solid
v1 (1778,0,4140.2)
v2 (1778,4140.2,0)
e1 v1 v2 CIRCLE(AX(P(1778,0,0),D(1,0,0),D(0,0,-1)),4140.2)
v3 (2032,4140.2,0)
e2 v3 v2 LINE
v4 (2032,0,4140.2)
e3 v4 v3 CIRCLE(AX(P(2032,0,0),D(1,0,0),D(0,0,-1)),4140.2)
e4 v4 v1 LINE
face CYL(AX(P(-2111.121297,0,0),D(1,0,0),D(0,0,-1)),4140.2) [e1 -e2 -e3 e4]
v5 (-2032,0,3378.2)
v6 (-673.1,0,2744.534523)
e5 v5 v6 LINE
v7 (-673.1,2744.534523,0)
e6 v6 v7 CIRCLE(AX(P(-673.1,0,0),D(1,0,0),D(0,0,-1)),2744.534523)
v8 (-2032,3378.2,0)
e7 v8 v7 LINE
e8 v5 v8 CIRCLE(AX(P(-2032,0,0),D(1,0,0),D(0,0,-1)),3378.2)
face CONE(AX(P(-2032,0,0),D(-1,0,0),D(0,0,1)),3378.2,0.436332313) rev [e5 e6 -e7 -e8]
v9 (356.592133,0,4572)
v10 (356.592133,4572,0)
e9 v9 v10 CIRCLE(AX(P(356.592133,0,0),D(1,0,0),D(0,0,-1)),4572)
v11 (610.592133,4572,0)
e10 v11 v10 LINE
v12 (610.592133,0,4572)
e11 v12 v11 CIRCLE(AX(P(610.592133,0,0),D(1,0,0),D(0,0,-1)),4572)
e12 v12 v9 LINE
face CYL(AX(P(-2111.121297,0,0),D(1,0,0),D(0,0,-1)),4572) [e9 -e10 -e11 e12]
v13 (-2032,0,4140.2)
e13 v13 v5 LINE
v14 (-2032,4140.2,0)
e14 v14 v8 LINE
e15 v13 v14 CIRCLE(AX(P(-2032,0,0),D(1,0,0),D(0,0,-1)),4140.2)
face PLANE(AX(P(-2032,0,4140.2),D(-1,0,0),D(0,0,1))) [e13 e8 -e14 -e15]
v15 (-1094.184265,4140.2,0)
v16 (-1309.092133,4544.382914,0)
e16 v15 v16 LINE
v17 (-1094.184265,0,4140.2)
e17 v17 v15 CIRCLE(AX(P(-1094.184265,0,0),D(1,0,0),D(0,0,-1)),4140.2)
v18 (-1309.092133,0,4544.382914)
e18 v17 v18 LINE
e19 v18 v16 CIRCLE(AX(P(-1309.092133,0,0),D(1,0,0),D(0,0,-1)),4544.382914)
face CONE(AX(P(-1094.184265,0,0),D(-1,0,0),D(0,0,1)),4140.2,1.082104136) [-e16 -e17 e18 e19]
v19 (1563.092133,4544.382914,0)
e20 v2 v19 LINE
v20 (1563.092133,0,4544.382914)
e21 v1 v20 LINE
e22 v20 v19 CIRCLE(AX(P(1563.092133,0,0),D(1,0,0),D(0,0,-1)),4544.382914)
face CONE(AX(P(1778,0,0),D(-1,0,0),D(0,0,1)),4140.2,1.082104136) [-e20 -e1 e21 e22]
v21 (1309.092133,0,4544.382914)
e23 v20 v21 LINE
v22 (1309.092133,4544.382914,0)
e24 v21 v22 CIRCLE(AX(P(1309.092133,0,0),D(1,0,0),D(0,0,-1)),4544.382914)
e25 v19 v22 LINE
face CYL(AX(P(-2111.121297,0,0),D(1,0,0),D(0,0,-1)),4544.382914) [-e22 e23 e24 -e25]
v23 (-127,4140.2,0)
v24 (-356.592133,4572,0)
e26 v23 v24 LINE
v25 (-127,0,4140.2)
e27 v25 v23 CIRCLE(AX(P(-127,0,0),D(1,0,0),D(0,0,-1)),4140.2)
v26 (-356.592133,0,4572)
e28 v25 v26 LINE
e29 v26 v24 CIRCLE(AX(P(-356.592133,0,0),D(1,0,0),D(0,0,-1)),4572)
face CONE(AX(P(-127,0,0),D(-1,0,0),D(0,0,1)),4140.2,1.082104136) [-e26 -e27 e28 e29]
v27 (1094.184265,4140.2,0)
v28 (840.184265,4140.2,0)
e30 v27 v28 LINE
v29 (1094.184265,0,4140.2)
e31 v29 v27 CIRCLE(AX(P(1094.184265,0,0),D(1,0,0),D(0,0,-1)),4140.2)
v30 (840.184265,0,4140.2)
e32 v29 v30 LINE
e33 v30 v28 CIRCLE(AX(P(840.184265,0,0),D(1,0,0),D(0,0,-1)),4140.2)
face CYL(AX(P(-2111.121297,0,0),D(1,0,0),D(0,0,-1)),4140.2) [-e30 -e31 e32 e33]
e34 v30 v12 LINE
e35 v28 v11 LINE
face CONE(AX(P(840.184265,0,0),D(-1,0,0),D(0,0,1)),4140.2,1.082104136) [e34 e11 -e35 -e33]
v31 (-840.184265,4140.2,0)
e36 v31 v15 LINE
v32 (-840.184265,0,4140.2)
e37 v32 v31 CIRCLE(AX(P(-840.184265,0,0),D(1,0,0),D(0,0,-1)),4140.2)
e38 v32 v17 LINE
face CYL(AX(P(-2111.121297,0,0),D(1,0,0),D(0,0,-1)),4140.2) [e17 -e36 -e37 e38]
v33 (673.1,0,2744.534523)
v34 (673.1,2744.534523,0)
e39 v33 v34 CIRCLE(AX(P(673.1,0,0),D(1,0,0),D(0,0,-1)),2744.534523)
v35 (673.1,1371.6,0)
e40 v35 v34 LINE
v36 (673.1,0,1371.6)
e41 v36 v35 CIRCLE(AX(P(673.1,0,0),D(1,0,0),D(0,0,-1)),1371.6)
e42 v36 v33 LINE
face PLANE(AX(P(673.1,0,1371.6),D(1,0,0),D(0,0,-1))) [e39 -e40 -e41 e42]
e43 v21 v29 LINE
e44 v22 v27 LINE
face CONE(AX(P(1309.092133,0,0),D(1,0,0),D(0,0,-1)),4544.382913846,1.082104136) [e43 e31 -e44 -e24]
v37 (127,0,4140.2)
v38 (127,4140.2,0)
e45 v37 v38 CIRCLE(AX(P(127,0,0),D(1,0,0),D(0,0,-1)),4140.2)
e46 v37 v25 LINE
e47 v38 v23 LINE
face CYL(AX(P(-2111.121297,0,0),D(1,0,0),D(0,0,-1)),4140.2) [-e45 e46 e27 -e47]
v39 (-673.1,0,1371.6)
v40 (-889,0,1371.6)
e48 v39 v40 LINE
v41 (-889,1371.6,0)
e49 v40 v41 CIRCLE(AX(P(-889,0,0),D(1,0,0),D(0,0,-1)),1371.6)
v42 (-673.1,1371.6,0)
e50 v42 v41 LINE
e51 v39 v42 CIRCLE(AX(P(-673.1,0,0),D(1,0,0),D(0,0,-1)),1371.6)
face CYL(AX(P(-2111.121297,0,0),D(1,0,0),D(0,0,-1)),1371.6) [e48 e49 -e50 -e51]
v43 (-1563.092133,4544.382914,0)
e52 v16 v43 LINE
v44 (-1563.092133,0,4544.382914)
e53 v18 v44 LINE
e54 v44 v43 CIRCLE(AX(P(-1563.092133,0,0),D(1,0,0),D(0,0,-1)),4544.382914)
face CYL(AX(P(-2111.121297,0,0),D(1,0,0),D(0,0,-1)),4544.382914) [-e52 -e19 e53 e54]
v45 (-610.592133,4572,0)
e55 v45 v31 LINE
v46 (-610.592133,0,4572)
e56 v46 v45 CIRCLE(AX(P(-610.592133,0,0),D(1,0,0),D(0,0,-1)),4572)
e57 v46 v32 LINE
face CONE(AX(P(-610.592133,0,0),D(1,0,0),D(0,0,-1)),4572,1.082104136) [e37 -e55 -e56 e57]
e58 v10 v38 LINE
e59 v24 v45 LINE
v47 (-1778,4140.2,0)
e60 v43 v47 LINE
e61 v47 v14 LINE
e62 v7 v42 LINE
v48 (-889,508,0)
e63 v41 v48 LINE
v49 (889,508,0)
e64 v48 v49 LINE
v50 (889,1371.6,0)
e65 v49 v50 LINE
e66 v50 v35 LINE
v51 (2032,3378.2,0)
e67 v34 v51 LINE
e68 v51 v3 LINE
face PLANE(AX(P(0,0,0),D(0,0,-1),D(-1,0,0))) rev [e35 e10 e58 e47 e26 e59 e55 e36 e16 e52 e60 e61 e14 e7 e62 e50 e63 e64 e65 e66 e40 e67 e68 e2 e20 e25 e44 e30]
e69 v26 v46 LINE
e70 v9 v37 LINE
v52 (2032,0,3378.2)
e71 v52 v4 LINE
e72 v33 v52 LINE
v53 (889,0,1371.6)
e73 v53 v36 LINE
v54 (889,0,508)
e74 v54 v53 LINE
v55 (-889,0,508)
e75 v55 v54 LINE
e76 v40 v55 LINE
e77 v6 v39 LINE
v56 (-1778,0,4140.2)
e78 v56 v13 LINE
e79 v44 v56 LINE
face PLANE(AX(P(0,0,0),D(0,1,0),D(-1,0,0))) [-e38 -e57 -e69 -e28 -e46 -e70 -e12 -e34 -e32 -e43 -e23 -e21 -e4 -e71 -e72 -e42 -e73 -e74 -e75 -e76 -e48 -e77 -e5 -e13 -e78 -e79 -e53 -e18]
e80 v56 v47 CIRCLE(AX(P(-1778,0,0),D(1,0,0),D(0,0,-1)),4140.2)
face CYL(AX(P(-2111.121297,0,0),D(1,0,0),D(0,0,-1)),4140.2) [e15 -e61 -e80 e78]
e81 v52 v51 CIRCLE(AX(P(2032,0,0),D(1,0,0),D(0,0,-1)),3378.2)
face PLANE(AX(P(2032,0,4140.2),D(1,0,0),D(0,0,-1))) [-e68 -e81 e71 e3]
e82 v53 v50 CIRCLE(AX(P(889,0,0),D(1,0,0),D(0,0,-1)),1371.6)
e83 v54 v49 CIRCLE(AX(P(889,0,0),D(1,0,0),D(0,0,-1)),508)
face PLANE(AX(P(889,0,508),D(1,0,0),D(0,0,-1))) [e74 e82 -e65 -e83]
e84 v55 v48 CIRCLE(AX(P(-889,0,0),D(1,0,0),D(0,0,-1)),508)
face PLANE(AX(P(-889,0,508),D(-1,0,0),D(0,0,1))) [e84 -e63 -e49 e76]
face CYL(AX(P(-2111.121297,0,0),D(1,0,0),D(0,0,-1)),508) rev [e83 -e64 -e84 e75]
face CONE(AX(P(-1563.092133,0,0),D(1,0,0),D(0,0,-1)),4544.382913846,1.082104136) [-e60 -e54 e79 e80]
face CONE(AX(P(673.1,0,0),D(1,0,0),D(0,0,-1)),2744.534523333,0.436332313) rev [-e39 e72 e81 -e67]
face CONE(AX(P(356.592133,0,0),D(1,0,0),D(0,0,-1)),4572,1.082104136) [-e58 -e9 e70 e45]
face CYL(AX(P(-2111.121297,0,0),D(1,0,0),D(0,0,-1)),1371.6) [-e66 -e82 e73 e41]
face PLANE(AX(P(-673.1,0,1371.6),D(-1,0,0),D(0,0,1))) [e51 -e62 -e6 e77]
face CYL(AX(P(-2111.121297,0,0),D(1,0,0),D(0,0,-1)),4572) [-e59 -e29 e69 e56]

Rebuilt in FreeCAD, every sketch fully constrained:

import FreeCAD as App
import Part
import Sketcher
Q = App.Units.Quantity

doc = App.newDocument("Part")
body = doc.addObject("PartDesign::Body", "Body")

sketch1 = doc.addObject("Sketcher::SketchObject", "Sketch")
body.addObject(sketch1)
sketch1.AttachmentSupport = (doc.XY_Plane, [""])
sketch1.MapMode = "FlatFace"
sketch1.addGeometry(Part.LineSegment(App.Vector(-889, 508, 0), App.Vector(889, 508, 0)), False)
sketch1.addGeometry(Part.LineSegment(App.Vector(889, 508, 0), App.Vector(889, 1372, 0)), False)
sketch1.addGeometry(Part.LineSegment(App.Vector(889, 1372, 0), App.Vector(673, 1372, 0)), False)
sketch1.addGeometry(Part.LineSegment(App.Vector(673, 1372, 0), App.Vector(673, 2745, 0)), False)
sketch1.addGeometry(Part.LineSegment(App.Vector(673, 2745, 0), App.Vector(2032, 3378, 0)), False)
sketch1.addGeometry(Part.LineSegment(App.Vector(2032, 3378, 0), App.Vector(2032, 4140, 0)), False)
sketch1.addGeometry(Part.LineSegment(App.Vector(2032, 4140, 0), App.Vector(1778, 4140, 0)), False)
sketch1.addGeometry(Part.LineSegment(App.Vector(1778, 4140, 0), App.Vector(1563, 4544, 0)), False)
sketch1.addGeometry(Part.LineSegment(App.Vector(1563, 4544, 0), App.Vector(1309, 4544, 0)), False)
sketch1.addGeometry(Part.LineSegment(App.Vector(1309, 4544, 0), App.Vector(1094, 4140, 0)), False)
sketch1.addGeometry(Part.LineSegment(App.Vector(1094, 4140, 0), App.Vector(840, 4140, 0)), False)
sketch1.addGeometry(Part.LineSegment(App.Vector(840, 4140, 0), App.Vector(611, 4572, 0)), False)
sketch1.addGeometry(Part.LineSegment(App.Vector(611, 4572, 0), App.Vector(357, 4572, 0)), False)
sketch1.addGeometry(Part.LineSegment(App.Vector(357, 4572, 0), App.Vector(127, 4140, 0)), False)
sketch1.addGeometry(Part.LineSegment(App.Vector(127, 4140, 0), App.Vector(-127, 4140, 0)), False)
sketch1.addGeometry(Part.LineSegment(App.Vector(-127, 4140, 0), App.Vector(-357, 4572, 0)), False)
sketch1.addGeometry(Part.LineSegment(App.Vector(-357, 4572, 0), App.Vector(-611, 4572, 0)), False)
sketch1.addGeometry(Part.LineSegment(App.Vector(-611, 4572, 0), App.Vector(-840, 4140, 0)), False)
sketch1.addGeometry(Part.LineSegment(App.Vector(-840, 4140, 0), App.Vector(-1094, 4140, 0)), False)
sketch1.addGeometry(Part.LineSegment(App.Vector(-1094, 4140, 0), App.Vector(-1309, 4544, 0)), False)
sketch1.addGeometry(Part.LineSegment(App.Vector(-1309, 4544, 0), App.Vector(-1563, 4544, 0)), False)
sketch1.addGeometry(Part.LineSegment(App.Vector(-1563, 4544, 0), App.Vector(-1778, 4140, 0)), False)
sketch1.addGeometry(Part.LineSegment(App.Vector(-1778, 4140, 0), App.Vector(-2032, 4140, 0)), False)
sketch1.addGeometry(Part.LineSegment(App.Vector(-2032, 4140, 0), App.Vector(-2032, 3378, 0)), False)
sketch1.addGeometry(Part.LineSegment(App.Vector(-2032, 3378, 0), App.Vector(-673, 2745, 0)), False)
sketch1.addGeometry(Part.LineSegment(App.Vector(-673, 2745, 0), App.Vector(-673, 1372, 0)), False)
sketch1.addGeometry(Part.LineSegment(App.Vector(-673, 1372, 0), App.Vector(-889, 1372, 0)), False)
sketch1.addGeometry(Part.LineSegment(App.Vector(-889, 1372, 0), App.Vector(-889, 508, 0)), False)
sketch1.addConstraint(Sketcher.Constraint("Coincident", 0, 2, 1, 1))
sketch1.addConstraint(Sketcher.Constraint("Coincident", 1, 2, 2, 1))
sketch1.addConstraint(Sketcher.Constraint("Coincident", 2, 2, 3, 1))
sketch1.addConstraint(Sketcher.Constraint("Coincident", 3, 2, 4, 1))
sketch1.addConstraint(Sketcher.Constraint("Coincident", 4, 2, 5, 1))
sketch1.addConstraint(Sketcher.Constraint("Coincident", 5, 2, 6, 1))
sketch1.addConstraint(Sketcher.Constraint("Coincident", 6, 2, 7, 1))
sketch1.addConstraint(Sketcher.Constraint("Coincident", 7, 2, 8, 1))
sketch1.addConstraint(Sketcher.Constraint("Coincident", 8, 2, 9, 1))
sketch1.addConstraint(Sketcher.Constraint("Coincident", 9, 2, 10, 1))
sketch1.addConstraint(Sketcher.Constraint("Coincident", 10, 2, 11, 1))
sketch1.addConstraint(Sketcher.Constraint("Coincident", 11, 2, 12, 1))
sketch1.addConstraint(Sketcher.Constraint("Coincident", 12, 2, 13, 1))
sketch1.addConstraint(Sketcher.Constraint("Coincident", 13, 2, 14, 1))
sketch1.addConstraint(Sketcher.Constraint("Coincident", 14, 2, 15, 1))
sketch1.addConstraint(Sketcher.Constraint("Coincident", 15, 2, 16, 1))
sketch1.addConstraint(Sketcher.Constraint("Coincident", 16, 2, 17, 1))
sketch1.addConstraint(Sketcher.Constraint("Coincident", 17, 2, 18, 1))
sketch1.addConstraint(Sketcher.Constraint("Coincident", 18, 2, 19, 1))
sketch1.addConstraint(Sketcher.Constraint("Coincident", 19, 2, 20, 1))
sketch1.addConstraint(Sketcher.Constraint("Coincident", 20, 2, 21, 1))
sketch1.addConstraint(Sketcher.Constraint("Coincident", 21, 2, 22, 1))
sketch1.addConstraint(Sketcher.Constraint("Coincident", 22, 2, 23, 1))
sketch1.addConstraint(Sketcher.Constraint("Coincident", 23, 2, 24, 1))
sketch1.addConstraint(Sketcher.Constraint("Coincident", 24, 2, 25, 1))
sketch1.addConstraint(Sketcher.Constraint("Coincident", 25, 2, 26, 1))
sketch1.addConstraint(Sketcher.Constraint("Coincident", 26, 2, 27, 1))
sketch1.addConstraint(Sketcher.Constraint("Coincident", 27, 2, 0, 1))
sketch1.addConstraint(Sketcher.Constraint("Horizontal", 0))
sketch1.addConstraint(Sketcher.Constraint("Vertical", 1))
sketch1.addConstraint(Sketcher.Constraint("Horizontal", 2))
sketch1.addConstraint(Sketcher.Constraint("Vertical", 3))
sketch1.addConstraint(Sketcher.Constraint("Vertical", 5))
sketch1.addConstraint(Sketcher.Constraint("Horizontal", 6))
sketch1.addConstraint(Sketcher.Constraint("Horizontal", 8))
sketch1.addConstraint(Sketcher.Constraint("Horizontal", 10))
sketch1.addConstraint(Sketcher.Constraint("Horizontal", 12))
sketch1.addConstraint(Sketcher.Constraint("Horizontal", 14))
sketch1.addConstraint(Sketcher.Constraint("Horizontal", 16))
sketch1.addConstraint(Sketcher.Constraint("Horizontal", 18))
sketch1.addConstraint(Sketcher.Constraint("Horizontal", 20))
sketch1.addConstraint(Sketcher.Constraint("Horizontal", 22))
sketch1.addConstraint(Sketcher.Constraint("Vertical", 23))
sketch1.addConstraint(Sketcher.Constraint("Vertical", 25))
sketch1.addConstraint(Sketcher.Constraint("Horizontal", 26))
sketch1.addConstraint(Sketcher.Constraint("Vertical", 27))
sketch1.addConstraint(Sketcher.Constraint("Symmetric", 12, 2, 15, 2, -2))
sketch1.addConstraint(Sketcher.Constraint("Symmetric", 10, 2, 17, 2, -2))
sketch1.addConstraint(Sketcher.Constraint("Symmetric", 8, 2, 19, 2, -2))
sketch1.addConstraint(Sketcher.Constraint("Symmetric", 6, 2, 21, 2, -2))
sketch1.addConstraint(Sketcher.Constraint("Symmetric", 4, 2, 23, 2, -2))
sketch1.addConstraint(Sketcher.Constraint("Symmetric", 3, 2, 24, 2, -2))
sketch1.addConstraint(Sketcher.Constraint("Symmetric", 1, 2, 26, 2, -2))
sketch1.addConstraint(Sketcher.Constraint("Parallel", 7, 11))
sketch1.addConstraint(Sketcher.Constraint("Parallel", 9, 13))
sketch1.addConstraint(Sketcher.Constraint("Parallel", 11, 15))
sketch1.addConstraint(Sketcher.Constraint("Parallel", 13, 17))
sketch1.addConstraint(Sketcher.Constraint("Parallel", 15, 19))
sketch1.addConstraint(Sketcher.Constraint("Parallel", 17, 21))
sketch1.addConstraint(Sketcher.Constraint("Horizontal", 6, 2, 9, 2))
sketch1.addConstraint(Sketcher.Constraint("Horizontal", 10, 2, 13, 2))
sketch1.addConstraint(Sketcher.Constraint("Equal", 6, 8))
sketch1.addConstraint(Sketcher.Constraint("Equal", 8, 10))
sketch1.addConstraint(Sketcher.Constraint("Equal", 10, 12))
sketch1.addConstraint(Sketcher.Constraint("Equal", 12, 14))
sketch1.addConstraint(Sketcher.Constraint("Equal", 14, 16))
sketch1.addConstraint(Sketcher.Constraint("DistanceX", 0, 1, 0, 2, Q("70 in")))
sketch1.addConstraint(Sketcher.Constraint("DistanceX", 6, 2, 6, 1, Q("10 in")))
sketch1.addConstraint(Sketcher.Constraint("DistanceY", 1, 1, 1, 2, Q("34 in")))
sketch1.addConstraint(Sketcher.Constraint("DistanceY", 5, 1, 5, 2, Q("30 in")))
sketch1.addConstraint(Sketcher.Constraint("DistanceX", 2, 2, 2, 1, Q("8.5 in")))
sketch1.addConstraint(Sketcher.Constraint("DistanceY", -1, 1, 0, 2, Q("20 in")))
sketch1.addConstraint(Sketcher.Constraint("DistanceX", -1, 1, 4, 2, Q("80 in")))
sketch1.addConstraint(Sketcher.Constraint("DistanceY", -1, 1, 4, 2, Q("133 in")))
sketch1.addConstraint(Sketcher.Constraint("DistanceY", -1, 1, 11, 2, Q("180 in")))
sketch1.addConstraint(Sketcher.Constraint("Angle", 4, Q("25 deg")))
sketch1.addConstraint(Sketcher.Constraint("Angle", 7, Q("118 deg")))
revolution = doc.addObject("PartDesign::Revolution", "Revolution")
body.addObject(revolution)
revolution.Profile = sketch1
revolution.ReferenceAxis = (sketch1, ["H_Axis"])
revolution.Angle = 270
revolution.Reversed = True

doc.recompute()
